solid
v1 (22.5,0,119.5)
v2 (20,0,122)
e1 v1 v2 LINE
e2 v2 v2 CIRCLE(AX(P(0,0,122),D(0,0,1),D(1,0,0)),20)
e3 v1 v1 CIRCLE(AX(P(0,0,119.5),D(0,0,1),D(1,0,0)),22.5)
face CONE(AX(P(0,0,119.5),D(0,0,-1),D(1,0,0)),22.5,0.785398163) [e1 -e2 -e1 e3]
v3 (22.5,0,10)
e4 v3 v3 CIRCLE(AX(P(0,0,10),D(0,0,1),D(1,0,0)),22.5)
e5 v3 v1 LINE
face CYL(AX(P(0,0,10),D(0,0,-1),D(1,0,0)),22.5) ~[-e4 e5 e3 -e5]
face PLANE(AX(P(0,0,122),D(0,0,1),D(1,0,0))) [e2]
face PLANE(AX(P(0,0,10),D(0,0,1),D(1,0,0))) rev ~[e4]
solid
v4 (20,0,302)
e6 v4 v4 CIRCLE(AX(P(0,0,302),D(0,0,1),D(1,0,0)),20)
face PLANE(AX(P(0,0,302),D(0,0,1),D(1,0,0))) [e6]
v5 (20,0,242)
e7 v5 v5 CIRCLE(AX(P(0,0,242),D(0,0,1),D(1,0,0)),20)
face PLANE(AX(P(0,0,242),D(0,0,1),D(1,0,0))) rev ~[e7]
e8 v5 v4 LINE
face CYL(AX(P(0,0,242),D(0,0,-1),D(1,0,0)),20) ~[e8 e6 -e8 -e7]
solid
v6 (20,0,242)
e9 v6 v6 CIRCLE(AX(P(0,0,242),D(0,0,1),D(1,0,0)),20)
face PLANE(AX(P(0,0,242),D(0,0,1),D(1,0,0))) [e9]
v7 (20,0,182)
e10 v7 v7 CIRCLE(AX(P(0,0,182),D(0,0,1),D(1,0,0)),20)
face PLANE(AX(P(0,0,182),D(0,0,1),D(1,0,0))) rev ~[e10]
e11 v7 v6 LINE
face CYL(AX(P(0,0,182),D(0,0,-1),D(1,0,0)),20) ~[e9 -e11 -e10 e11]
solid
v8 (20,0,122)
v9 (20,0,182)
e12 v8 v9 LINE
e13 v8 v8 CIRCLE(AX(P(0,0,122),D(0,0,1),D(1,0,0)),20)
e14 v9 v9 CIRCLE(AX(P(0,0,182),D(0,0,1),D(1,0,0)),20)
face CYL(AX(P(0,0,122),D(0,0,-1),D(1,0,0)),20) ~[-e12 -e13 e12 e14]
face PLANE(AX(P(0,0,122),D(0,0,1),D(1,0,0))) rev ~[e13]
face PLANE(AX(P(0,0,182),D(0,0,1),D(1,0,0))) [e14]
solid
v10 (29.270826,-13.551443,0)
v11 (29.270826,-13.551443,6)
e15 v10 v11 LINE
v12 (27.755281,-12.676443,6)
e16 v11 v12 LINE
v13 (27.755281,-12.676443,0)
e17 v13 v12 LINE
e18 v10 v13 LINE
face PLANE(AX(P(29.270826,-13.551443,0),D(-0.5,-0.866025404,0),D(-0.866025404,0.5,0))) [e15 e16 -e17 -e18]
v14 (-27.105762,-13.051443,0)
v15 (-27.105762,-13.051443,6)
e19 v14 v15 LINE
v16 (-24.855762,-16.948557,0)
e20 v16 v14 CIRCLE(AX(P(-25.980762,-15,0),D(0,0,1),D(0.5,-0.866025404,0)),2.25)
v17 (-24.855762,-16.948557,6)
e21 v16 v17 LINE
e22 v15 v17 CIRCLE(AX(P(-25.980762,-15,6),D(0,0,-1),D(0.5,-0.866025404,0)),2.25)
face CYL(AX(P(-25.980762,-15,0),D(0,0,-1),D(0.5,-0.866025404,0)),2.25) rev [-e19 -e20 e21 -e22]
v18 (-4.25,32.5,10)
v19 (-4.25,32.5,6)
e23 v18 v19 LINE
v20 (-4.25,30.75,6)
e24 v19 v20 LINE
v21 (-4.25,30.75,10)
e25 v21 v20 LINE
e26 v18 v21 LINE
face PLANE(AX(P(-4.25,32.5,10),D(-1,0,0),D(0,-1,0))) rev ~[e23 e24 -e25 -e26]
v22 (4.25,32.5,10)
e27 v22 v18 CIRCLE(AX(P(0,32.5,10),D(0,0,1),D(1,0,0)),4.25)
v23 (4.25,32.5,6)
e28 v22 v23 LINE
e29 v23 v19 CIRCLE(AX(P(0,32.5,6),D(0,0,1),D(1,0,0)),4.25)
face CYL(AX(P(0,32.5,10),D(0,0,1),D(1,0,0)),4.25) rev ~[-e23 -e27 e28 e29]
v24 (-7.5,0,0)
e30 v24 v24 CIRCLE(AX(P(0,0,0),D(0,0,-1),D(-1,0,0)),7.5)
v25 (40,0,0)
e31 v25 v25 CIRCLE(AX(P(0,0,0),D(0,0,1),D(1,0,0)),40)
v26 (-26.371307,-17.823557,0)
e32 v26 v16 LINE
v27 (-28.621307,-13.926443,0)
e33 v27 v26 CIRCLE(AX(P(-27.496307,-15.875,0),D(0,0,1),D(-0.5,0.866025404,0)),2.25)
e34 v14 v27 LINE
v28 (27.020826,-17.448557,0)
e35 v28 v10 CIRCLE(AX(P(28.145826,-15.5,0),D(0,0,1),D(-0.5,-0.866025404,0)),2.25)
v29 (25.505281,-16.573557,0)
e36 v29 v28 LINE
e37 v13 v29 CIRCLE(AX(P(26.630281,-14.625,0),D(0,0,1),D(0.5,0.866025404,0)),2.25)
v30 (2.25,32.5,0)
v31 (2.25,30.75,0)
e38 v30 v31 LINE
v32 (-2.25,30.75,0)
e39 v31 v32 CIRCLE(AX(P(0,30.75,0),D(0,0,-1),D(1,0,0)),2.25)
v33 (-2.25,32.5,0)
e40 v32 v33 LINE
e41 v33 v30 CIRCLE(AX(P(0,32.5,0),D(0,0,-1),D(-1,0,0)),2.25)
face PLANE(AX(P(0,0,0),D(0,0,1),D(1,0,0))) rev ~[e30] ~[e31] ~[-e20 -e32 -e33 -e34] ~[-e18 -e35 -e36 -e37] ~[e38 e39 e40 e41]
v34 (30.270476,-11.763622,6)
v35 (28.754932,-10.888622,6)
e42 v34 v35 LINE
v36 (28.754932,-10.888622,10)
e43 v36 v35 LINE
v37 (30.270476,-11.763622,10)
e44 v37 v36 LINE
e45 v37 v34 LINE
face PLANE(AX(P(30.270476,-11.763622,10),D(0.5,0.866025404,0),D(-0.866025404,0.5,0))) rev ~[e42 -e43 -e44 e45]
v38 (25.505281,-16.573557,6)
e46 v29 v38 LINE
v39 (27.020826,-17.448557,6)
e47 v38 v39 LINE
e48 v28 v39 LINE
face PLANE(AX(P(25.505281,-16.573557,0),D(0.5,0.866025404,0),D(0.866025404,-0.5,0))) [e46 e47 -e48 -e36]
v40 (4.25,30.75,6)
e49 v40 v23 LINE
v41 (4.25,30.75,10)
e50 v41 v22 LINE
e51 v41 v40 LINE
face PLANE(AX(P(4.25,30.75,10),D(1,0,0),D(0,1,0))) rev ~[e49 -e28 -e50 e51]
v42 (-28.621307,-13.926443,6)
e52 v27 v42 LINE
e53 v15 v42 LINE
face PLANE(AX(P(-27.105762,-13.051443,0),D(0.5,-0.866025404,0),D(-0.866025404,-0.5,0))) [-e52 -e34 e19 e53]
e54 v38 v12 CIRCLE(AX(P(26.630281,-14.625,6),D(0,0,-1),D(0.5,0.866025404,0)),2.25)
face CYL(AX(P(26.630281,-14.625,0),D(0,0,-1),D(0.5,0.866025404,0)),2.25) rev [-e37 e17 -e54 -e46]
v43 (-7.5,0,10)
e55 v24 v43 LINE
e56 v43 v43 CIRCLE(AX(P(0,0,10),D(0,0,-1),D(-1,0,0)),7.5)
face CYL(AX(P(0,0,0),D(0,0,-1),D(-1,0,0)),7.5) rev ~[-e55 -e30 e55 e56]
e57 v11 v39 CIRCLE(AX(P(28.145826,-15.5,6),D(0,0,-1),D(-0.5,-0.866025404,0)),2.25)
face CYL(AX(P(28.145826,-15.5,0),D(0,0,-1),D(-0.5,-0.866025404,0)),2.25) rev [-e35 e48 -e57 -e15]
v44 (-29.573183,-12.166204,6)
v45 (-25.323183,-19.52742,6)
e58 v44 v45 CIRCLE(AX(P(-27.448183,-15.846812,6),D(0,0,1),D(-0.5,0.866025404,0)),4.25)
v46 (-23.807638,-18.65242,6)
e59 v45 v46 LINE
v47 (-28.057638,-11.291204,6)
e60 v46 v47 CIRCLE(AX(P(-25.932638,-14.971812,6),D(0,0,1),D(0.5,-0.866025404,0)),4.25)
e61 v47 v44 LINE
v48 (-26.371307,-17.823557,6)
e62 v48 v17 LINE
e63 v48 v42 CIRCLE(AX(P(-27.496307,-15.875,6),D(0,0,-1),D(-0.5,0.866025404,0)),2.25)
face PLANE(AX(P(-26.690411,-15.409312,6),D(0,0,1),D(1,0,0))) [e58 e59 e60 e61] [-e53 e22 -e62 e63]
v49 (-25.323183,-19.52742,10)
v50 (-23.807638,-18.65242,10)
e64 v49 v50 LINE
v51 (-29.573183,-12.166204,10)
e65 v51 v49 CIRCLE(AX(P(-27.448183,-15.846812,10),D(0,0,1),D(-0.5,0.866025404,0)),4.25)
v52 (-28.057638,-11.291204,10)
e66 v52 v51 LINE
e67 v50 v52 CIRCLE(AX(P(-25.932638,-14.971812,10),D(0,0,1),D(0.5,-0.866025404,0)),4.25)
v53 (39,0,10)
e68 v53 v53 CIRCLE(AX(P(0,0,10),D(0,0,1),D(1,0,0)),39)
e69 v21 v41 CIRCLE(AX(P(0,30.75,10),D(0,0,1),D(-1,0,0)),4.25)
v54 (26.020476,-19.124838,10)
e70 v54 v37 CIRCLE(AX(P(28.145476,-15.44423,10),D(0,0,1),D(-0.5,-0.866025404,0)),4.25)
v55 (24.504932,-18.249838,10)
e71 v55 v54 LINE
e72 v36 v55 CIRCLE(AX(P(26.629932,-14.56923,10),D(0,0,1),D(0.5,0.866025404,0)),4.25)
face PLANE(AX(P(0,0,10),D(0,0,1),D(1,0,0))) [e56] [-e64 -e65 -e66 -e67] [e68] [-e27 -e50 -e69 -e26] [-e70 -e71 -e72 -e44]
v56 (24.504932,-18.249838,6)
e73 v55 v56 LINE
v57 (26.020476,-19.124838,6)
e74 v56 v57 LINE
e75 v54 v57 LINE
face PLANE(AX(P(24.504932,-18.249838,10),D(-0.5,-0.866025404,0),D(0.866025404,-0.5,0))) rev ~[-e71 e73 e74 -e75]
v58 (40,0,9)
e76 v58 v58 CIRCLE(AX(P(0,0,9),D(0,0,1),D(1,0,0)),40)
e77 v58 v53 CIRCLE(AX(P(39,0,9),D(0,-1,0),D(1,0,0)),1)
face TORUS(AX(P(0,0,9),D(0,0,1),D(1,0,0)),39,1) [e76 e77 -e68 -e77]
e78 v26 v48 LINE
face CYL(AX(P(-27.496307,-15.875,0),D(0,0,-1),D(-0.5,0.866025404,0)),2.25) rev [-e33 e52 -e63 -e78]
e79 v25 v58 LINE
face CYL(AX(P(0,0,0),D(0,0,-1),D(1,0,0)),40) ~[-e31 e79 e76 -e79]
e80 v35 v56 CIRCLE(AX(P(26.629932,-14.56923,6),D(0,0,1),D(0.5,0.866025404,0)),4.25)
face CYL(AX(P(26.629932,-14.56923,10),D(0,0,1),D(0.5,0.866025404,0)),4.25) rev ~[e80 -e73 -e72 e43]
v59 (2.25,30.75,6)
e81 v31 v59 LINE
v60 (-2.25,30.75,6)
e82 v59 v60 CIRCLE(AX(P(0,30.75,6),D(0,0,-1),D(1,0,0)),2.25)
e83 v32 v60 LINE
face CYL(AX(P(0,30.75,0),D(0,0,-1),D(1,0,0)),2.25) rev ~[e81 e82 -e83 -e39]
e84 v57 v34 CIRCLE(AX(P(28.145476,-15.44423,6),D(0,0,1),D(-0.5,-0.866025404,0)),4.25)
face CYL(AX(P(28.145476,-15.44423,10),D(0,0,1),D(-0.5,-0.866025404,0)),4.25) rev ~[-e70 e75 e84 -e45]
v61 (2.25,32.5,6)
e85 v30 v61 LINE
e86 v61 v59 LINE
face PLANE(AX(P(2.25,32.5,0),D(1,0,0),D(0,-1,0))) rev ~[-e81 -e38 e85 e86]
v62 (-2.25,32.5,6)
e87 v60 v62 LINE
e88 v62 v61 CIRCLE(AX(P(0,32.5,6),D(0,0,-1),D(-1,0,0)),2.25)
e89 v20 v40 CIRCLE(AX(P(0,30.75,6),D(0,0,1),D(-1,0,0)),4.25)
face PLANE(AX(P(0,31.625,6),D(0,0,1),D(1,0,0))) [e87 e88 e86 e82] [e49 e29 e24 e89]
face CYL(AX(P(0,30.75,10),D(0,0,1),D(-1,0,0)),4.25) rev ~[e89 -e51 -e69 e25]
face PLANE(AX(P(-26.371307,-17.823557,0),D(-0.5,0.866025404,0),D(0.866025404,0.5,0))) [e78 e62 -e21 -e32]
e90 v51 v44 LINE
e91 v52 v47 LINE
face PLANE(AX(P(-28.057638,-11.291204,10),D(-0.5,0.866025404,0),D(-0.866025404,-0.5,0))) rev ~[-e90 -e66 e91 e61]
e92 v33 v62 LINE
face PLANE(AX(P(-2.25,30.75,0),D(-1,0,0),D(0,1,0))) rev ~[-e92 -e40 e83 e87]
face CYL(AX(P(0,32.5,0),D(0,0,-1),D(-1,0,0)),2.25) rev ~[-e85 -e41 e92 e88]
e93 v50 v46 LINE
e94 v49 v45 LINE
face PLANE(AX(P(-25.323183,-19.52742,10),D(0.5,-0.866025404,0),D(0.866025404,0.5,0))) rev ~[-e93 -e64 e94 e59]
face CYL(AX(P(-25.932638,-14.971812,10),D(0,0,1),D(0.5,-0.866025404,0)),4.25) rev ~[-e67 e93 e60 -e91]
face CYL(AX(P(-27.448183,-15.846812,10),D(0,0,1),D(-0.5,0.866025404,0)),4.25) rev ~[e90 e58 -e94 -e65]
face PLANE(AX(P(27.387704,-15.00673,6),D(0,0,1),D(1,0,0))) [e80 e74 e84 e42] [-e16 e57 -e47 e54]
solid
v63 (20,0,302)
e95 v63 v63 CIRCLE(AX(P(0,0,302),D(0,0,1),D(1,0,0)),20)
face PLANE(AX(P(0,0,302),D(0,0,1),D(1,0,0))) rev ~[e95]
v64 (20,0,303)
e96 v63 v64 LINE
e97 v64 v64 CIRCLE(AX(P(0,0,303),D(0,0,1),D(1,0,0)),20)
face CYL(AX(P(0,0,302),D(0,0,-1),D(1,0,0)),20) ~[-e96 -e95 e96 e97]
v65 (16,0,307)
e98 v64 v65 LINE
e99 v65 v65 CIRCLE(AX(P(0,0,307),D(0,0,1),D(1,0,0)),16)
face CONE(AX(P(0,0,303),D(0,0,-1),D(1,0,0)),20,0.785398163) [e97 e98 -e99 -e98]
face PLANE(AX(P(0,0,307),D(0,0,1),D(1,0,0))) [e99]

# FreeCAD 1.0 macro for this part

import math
import FreeCAD as App
import Part
import Sketcher
Q = App.Units.Quantity


def edges_at(feature, points):
    """Names of the edges that pass closest to the given points."""
    edges = feature.Shape.Edges
    near = lambda p: min(range(len(edges)), key=lambda i: edges[i].distToShape(Part.Vertex(*p))[0])
    return sorted({f"Edge{near(p) + 1}" for p in points})

doc = App.newDocument("Part")
body = doc.addObject("PartDesign::Body", "Body")

# Sketch on XY plane
sketch1 = doc.addObject("Sketcher::SketchObject", "Sketch")
body.addObject(sketch1)
sketch1.AttachmentSupport = (doc.XY_Plane, [""])
sketch1.MapMode = "FlatFace"
sketch1.addGeometry(Part.Circle(App.Vector(0, 0, 0), App.Vector(0, 0, 1), 40), False)
sketch1.addGeometry(Part.LineSegment(App.Vector(-24.9, -16.9, 0), App.Vector(-26.4, -17.8, 0)), False)
sketch1.addGeometry(Part.ArcOfCircle(Part.Circle(App.Vector(-27.5, -15.9, 0), App.Vector(0, 0, 1), 2.2), math.radians(120), math.radians(300)), False)
sketch1.addGeometry(Part.LineSegment(App.Vector(-28.6, -13.9, 0), App.Vector(-27.1, -13.1, 0)), False)
sketch1.addGeometry(Part.ArcOfCircle(Part.Circle(App.Vector(-26, -15, 0), App.Vector(0, 0, 1), 2.2), math.radians(-60), math.radians(120)), False)
sketch1.addGeometry(Part.LineSegment(App.Vector(27.8, -12.7, 0), App.Vector(29.3, -13.6, 0)), False)
sketch1.addGeometry(Part.ArcOfCircle(Part.Circle(App.Vector(28.1, -15.5, 0), App.Vector(0, 0, 1), 2.2), math.radians(-120), math.radians(60)), False)
sketch1.addGeometry(Part.LineSegment(App.Vector(27, -17.4, 0), App.Vector(25.5, -16.6, 0)), False)
sketch1.addGeometry(Part.ArcOfCircle(Part.Circle(App.Vector(26.6, -14.6, 0), App.Vector(0, 0, 1), 2.2), math.radians(60), math.radians(240)), False)
sketch1.addGeometry(Part.ArcOfCircle(Part.Circle(App.Vector(0, 32.5, 0), App.Vector(0, 0, 1), 2.2), math.radians(0), math.radians(180)), False)
sketch1.addGeometry(Part.LineSegment(App.Vector(2.2, 32.5, 0), App.Vector(2.2, 30.8, 0)), False)
sketch1.addGeometry(Part.ArcOfCircle(Part.Circle(App.Vector(0, 30.8, 0), App.Vector(0, 0, 1), 2.2), math.radians(180), math.radians(360)), False)
sketch1.addGeometry(Part.LineSegment(App.Vector(-2.2, 30.8, 0), App.Vector(-2.2, 32.5, 0)), False)
sketch1.addConstraint(Sketcher.Constraint("Tangent", 1, 2, 2, 2))
sketch1.addConstraint(Sketcher.Constraint("Tangent", 2, 1, 3, 1))
sketch1.addConstraint(Sketcher.Constraint("Tangent", 3, 2, 4, 2))
sketch1.addConstraint(Sketcher.Constraint("Tangent", 4, 1, 1, 1))
sketch1.addConstraint(Sketcher.Constraint("Tangent", 5, 2, 6, 2))
sketch1.addConstraint(Sketcher.Constraint("Tangent", 6, 1, 7, 1))
sketch1.addConstraint(Sketcher.Constraint("Tangent", 7, 2, 8, 2))
sketch1.addConstraint(Sketcher.Constraint("Tangent", 8, 1, 5, 1))
sketch1.addConstraint(Sketcher.Constraint("Tangent", 9, 1, 10, 1))
sketch1.addConstraint(Sketcher.Constraint("Tangent", 10, 2, 11, 2))
sketch1.addConstraint(Sketcher.Constraint("Tangent", 11, 1, 12, 1))
sketch1.addConstraint(Sketcher.Constraint("Tangent", 12, 2, 9, 2))
sketch1.addConstraint(Sketcher.Constraint("Vertical", 10))
sketch1.addConstraint(Sketcher.Constraint("Vertical", 12))
sketch1.addConstraint(Sketcher.Constraint("Coincident", 0, 3, -1, 1))
sketch1.addConstraint(Sketcher.Constraint("Equal", 2, 4))
sketch1.addConstraint(Sketcher.Constraint("Equal", 4, 6))
sketch1.addConstraint(Sketcher.Constraint("Equal", 6, 8))
sketch1.addConstraint(Sketcher.Constraint("Equal", 8, 9))
sketch1.addConstraint(Sketcher.Constraint("PointOnObject", 9, 3, -2))
sketch1.addConstraint(Sketcher.Constraint("Equal", 3, 5))
sketch1.addConstraint(Sketcher.Constraint("Diameter", 0, Q("80 mm")))
sketch1.addConstraint(Sketcher.Constraint("Angle", 1, Q("-150 deg")))
sketch1.addConstraint(Sketcher.Constraint("Angle", 5, Q("-30 deg")))
sketch1.addConstraint(Sketcher.Constraint("Radius", 2, Q("2.25 mm")))
sketch1.addConstraint(Sketcher.Constraint("DistanceY", 4, 3, -1, 1, Q("15 mm")))
sketch1.addConstraint(Sketcher.Constraint("DistanceY", 6, 3, 9, 3, Q("48 mm")))
sketch1.addConstraint(Sketcher.Constraint("DistanceY", 10, 2, 10, 1, Q("1.75 mm")))
sketch1.addConstraint(Sketcher.Constraint("DistanceY", 6, 3, -1, 1, Q("15.5 mm")))
sketch1.addConstraint(Sketcher.Constraint("Distance", 1, Q("1.75 mm")))
sketch1.addConstraint(Sketcher.Constraint("DistanceX", -1, 1, 8, 3, Q("26.630281 mm")))
sketch1.addConstraint(Sketcher.Constraint("DistanceX", 2, 3, -1, 1, Q("27.496307 mm")))
pad1 = doc.addObject("PartDesign::Pad", "Pad")
body.addObject(pad1)
pad1.Profile = sketch1
pad1.Length = 10
doc.recompute()

fillet = doc.addObject("PartDesign::Fillet", "Fillet")
body.addObject(fillet)
fillet.Base = (pad1, edges_at(pad1, [(-40, 0, 10)]))
fillet.Radius = 1

# Sketch on XY plane
sketch2 = doc.addObject("Sketcher::SketchObject", "Sketch001")
body.addObject(sketch2)
sketch2.AttachmentSupport = (doc.XY_Plane, [""])
sketch2.MapMode = "FlatFace"
sketch2.AttachmentOffset = App.Placement(App.Vector(0, 0, 10), App.Rotation())
sketch2.addGeometry(Part.LineSegment(App.Vector(24.5, -18.2, 0), App.Vector(26, -19.1, 0)), False)
sketch2.addGeometry(Part.ArcOfCircle(Part.Circle(App.Vector(28.1, -15.4, 0), App.Vector(0, 0, 1), 4.2), math.radians(-120), math.radians(60)), False)
sketch2.addGeometry(Part.LineSegment(App.Vector(30.3, -11.8, 0), App.Vector(28.8, -10.9, 0)), False)
sketch2.addGeometry(Part.ArcOfCircle(Part.Circle(App.Vector(26.6, -14.6, 0), App.Vector(0, 0, 1), 4.2), math.radians(60), math.radians(240)), False)
sketch2.addGeometry(Part.LineSegment(App.Vector(4.2, 30.8, 0), App.Vector(4.2, 32.5, 0)), False)
sketch2.addGeometry(Part.ArcOfCircle(Part.Circle(App.Vector(0, 32.5, 0), App.Vector(0, 0, 1), 4.2), math.radians(0), math.radians(180)), False)
sketch2.addGeometry(Part.LineSegment(App.Vector(-4.2, 32.5, 0), App.Vector(-4.2, 30.8, 0)), False)
sketch2.addGeometry(Part.ArcOfCircle(Part.Circle(App.Vector(0, 30.8, 0), App.Vector(0, 0, 1), 4.2), math.radians(180), math.radians(360)), False)
sketch2.addGeometry(Part.LineSegment(App.Vector(-28.1, -11.3, 0), App.Vector(-29.6, -12.2, 0)), False)
sketch2.addGeometry(Part.ArcOfCircle(Part.Circle(App.Vector(-27.4, -15.8, 0), App.Vector(0, 0, 1), 4.2), math.radians(120), math.radians(300)), False)
sketch2.addGeometry(Part.LineSegment(App.Vector(-25.3, -19.5, 0), App.Vector(-23.8, -18.7, 0)), False)
sketch2.addGeometry(Part.ArcOfCircle(Part.Circle(App.Vector(-25.9, -15, 0), App.Vector(0, 0, 1), 4.2), math.radians(-60), math.radians(120)), False)
sketch2.addConstraint(Sketcher.Constraint("Tangent", 0, 2, 1, 1))
sketch2.addConstraint(Sketcher.Constraint("Tangent", 1, 2, 2, 1))
sketch2.addConstraint(Sketcher.Constraint("Tangent", 2, 2, 3, 1))
sketch2.addConstraint(Sketcher.Constraint("Tangent", 3, 2, 0, 1))
sketch2.addConstraint(Sketcher.Constraint("Tangent", 4, 2, 5, 1))
sketch2.addConstraint(Sketcher.Constraint("Tangent", 5, 2, 6, 1))
sketch2.addConstraint(Sketcher.Constraint("Tangent", 6, 2, 7, 1))
sketch2.addConstraint(Sketcher.Constraint("Tangent", 7, 2, 4, 1))
sketch2.addConstraint(Sketcher.Constraint("Tangent", 8, 2, 9, 1))
sketch2.addConstraint(Sketcher.Constraint("Tangent", 9, 2, 10, 1))
sketch2.addConstraint(Sketcher.Constraint("Tangent", 10, 2, 11, 1))
sketch2.addConstraint(Sketcher.Constraint("Tangent", 11, 2, 8, 1))
sketch2.addConstraint(Sketcher.Constraint("Vertical", 4))
sketch2.addConstraint(Sketcher.Constraint("Vertical", 6))
sketch2.addConstraint(Sketcher.Constraint("Equal", 1, 3))
sketch2.addConstraint(Sketcher.Constraint("Equal", 3, 5))
sketch2.addConstraint(Sketcher.Constraint("Equal", 7, 9))
sketch2.addConstraint(Sketcher.Constraint("Equal", 9, 11))
sketch2.addConstraint(Sketcher.Constraint("PointOnObject", 5, 3, -2))
sketch2.addConstraint(Sketcher.Constraint("Equal", 2, 8))
sketch2.addConstraint(Sketcher.Constraint("Angle", 0, Q("-30 deg")))
sketch2.addConstraint(Sketcher.Constraint("Angle", 8, Q("-150 deg")))
sketch2.addConstraint(Sketcher.Constraint("Radius", 1, Q("4.25 mm")))
sketch2.addConstraint(Sketcher.Constraint("DistanceY", 4, 1, 4, 2, Q("1.75 mm")))
sketch2.addConstraint(Sketcher.Constraint("DistanceY", -1, 1, 5, 3, Q("32.5 mm")))
sketch2.addConstraint(Sketcher.Constraint("Distance", 0, Q("1.75 mm")))
sketch2.addConstraint(Sketcher.Constraint("DistanceY", 1, 3, -1, 1, Q("15.44423 mm")))
sketch2.addConstraint(Sketcher.Constraint("DistanceX", -1, 1, 3, 3, Q("26.629932 mm")))
sketch2.addConstraint(Sketcher.Constraint("DistanceX", 11, 3, -1, 1, Q("25.932638 mm")))
sketch2.addConstraint(Sketcher.Constraint("DistanceY", 9, 2, -1, 1, Q("19.52742 mm")))
pocket1 = doc.addObject("PartDesign::Pocket", "Pocket")
body.addObject(pocket1)
pocket1.Profile = sketch2
pocket1.Length = 4

# Sketch on XY plane
sketch3 = doc.addObject("Sketcher::SketchObject", "Sketch002")
body.addObject(sketch3)
sketch3.AttachmentSupport = (doc.XY_Plane, [""])
sketch3.MapMode = "FlatFace"
sketch3.addGeometry(Part.Circle(App.Vector(0, 0, 0), App.Vector(0, 0, 1), 8), False)
sketch3.addConstraint(Sketcher.Constraint("Coincident", 0, 3, -1, 1))
sketch3.addConstraint(Sketcher.Constraint("Diameter", 0, Q("15 mm")))
pocket2 = doc.addObject("PartDesign::Pocket", "Pocket001")
body.addObject(pocket2)
pocket2.Profile = sketch3
pocket2.Length = 10
pocket2.Reversed = True
body2 = doc.addObject("PartDesign::Body", "Body001")

# Sketch on XY plane
sketch4 = doc.addObject("Sketcher::SketchObject", "Sketch003")
body2.addObject(sketch4)
sketch4.AttachmentSupport = (doc.getObject("XY_Plane001"), [""])
sketch4.MapMode = "FlatFace"
sketch4.AttachmentOffset = App.Placement(App.Vector(0, 0, 10), App.Rotation())
sketch4.addGeometry(Part.Circle(App.Vector(0, 0, 0), App.Vector(0, 0, 1), 22), False)
sketch4.addConstraint(Sketcher.Constraint("Coincident", 0, 3, -1, 1))
sketch4.addConstraint(Sketcher.Constraint("Diameter", 0, Q("45 mm")))
pad2 = doc.addObject("PartDesign::Pad", "Pad001")
body2.addObject(pad2)
pad2.Profile = sketch4
pad2.Length = 112
doc.recompute()

chamfer = doc.addObject("PartDesign::Chamfer", "Chamfer")
body2.addObject(chamfer)
chamfer.Base = (pad2, edges_at(pad2, [(-22.5, 0, 122)]))
chamfer.Size = 2.5
body3 = doc.addObject("PartDesign::Body", "Body002")

# Sketch on XY plane
sketch5 = doc.addObject("Sketcher::SketchObject", "Sketch004")
body3.addObject(sketch5)
sketch5.AttachmentSupport = (doc.getObject("XY_Plane002"), [""])
sketch5.MapMode = "FlatFace"
sketch5.AttachmentOffset = App.Placement(App.Vector(0, 0, 122), App.Rotation())
sketch5.addGeometry(Part.Circle(App.Vector(0, 0, 0), App.Vector(0, 0, 1), 20), False)
sketch5.addConstraint(Sketcher.Constraint("Coincident", 0, 3, -1, 1))
sketch5.addConstraint(Sketcher.Constraint("Diameter", 0, Q("40 mm")))
pad3 = doc.addObject("PartDesign::Pad", "Pad002")
body3.addObject(pad3)
pad3.Profile = sketch5
pad3.Length = 60
body4 = doc.addObject("PartDesign::Body", "Body003")

# Sketch on XY plane
sketch6 = doc.addObject("Sketcher::SketchObject", "Sketch005")
body4.addObject(sketch6)
sketch6.AttachmentSupport = (doc.getObject("XY_Plane003"), [""])
sketch6.MapMode = "FlatFace"
sketch6.AttachmentOffset = App.Placement(App.Vector(0, 0, 182), App.Rotation())
sketch6.addGeometry(Part.Circle(App.Vector(0, 0, 0), App.Vector(0, 0, 1), 20), False)
sketch6.addConstraint(Sketcher.Constraint("Coincident", 0, 3, -1, 1))
sketch6.addConstraint(Sketcher.Constraint("Diameter", 0, Q("40 mm")))
pad4 = doc.addObject("PartDesign::Pad", "Pad003")
body4.addObject(pad4)
pad4.Profile = sketch6
pad4.Length = 60
body5 = doc.addObject("PartDesign::Body", "Body004")

# Sketch on XY plane
sketch7 = doc.addObject("Sketcher::SketchObject", "Sketch006")
body5.addObject(sketch7)
sketch7.AttachmentSupport = (doc.getObject("XY_Plane004"), [""])
sketch7.MapMode = "FlatFace"
sketch7.AttachmentOffset = App.Placement(App.Vector(0, 0, 242), App.Rotation())
sketch7.addGeometry(Part.Circle(App.Vector(0, 0, 0), App.Vector(0, 0, 1), 20), False)
sketch7.addConstraint(Sketcher.Constraint("Coincident", 0, 3, -1, 1))
sketch7.addConstraint(Sketcher.Constraint("Diameter", 0, Q("40 mm")))
pad5 = doc.addObject("PartDesign::Pad", "Pad004")
body5.addObject(pad5)
pad5.Profile = sketch7
pad5.Length = 60
body6 = doc.addObject("PartDesign::Body", "Body005")

# Sketch on XY plane
sketch8 = doc.addObject("Sketcher::SketchObject", "Sketch007")
body6.addObject(sketch8)
sketch8.AttachmentSupport = (doc.getObject("XY_Plane005"), [""])
sketch8.MapMode = "FlatFace"
sketch8.AttachmentOffset = App.Placement(App.Vector(0, 0, 302), App.Rotation())
sketch8.addGeometry(Part.Circle(App.Vector(0, 0, 0), App.Vector(0, 0, 1), 20), False)
sketch8.addConstraint(Sketcher.Constraint("Coincident", 0, 3, -1, 1))
sketch8.addConstraint(Sketcher.Constraint("Diameter", 0, Q("40 mm")))
pad6 = doc.addObject("PartDesign::Pad", "Pad005")
body6.addObject(pad6)
pad6.Profile = sketch8
pad6.Length = 5
doc.recompute()

chamfer2 = doc.addObject("PartDesign::Chamfer", "Chamfer001")
body6.addObject(chamfer2)
chamfer2.Base = (pad6, edges_at(pad6, [(-20, 0, 307)]))
chamfer2.Size = 4

doc.recompute()
